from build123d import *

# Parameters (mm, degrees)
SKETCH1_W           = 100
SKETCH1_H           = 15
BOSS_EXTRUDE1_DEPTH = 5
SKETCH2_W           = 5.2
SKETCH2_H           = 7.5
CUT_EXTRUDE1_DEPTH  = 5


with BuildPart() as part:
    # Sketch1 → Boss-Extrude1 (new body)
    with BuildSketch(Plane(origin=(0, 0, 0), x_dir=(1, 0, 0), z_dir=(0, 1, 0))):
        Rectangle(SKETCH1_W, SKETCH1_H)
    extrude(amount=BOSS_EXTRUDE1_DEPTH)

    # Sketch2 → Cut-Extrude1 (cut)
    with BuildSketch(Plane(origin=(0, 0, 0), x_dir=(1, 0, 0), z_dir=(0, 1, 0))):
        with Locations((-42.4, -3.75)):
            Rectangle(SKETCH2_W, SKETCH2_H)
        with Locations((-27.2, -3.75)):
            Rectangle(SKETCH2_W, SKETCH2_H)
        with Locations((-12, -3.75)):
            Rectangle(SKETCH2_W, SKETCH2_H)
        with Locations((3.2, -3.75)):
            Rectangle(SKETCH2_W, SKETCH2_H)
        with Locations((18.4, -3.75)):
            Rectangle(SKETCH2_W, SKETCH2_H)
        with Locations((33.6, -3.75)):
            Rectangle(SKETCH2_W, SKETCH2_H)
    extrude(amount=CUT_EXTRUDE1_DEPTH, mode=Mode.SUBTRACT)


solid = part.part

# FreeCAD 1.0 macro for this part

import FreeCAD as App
import Part
import Sketcher

V = App.Vector


def add_polygon(sketch, points):
    """Adds a closed chain of lines whose ends are joined by coincident constraints."""
    first, n = sketch.GeometryCount, len(points)
    for a, b in zip(points, points[1:] + points[:1]):
        sketch.addGeometry(Part.LineSegment(App.Vector(*a, 0), App.Vector(*b, 0)), False)
    for i in range(n):
        sketch.addConstraint(Sketcher.Constraint("Coincident", first + i, 2, first + (i + 1) % n, 1))

doc = App.newDocument("Part")
body = doc.addObject("PartDesign::Body", "Body")

sketch1 = body.newObject("Sketcher::SketchObject", "Sketch")
sketch1.AttachmentSupport = (doc.getObject("XZ_Plane"), [""])
sketch1.MapMode = "FlatFace"
add_polygon(sketch1, [(-50, -8), (-50, 8), (50, 8), (50, -8)])
sketch1.addConstraint(Sketcher.Constraint("Vertical", 0))
sketch1.addConstraint(Sketcher.Constraint("Horizontal", 1))
sketch1.addConstraint(Sketcher.Constraint("Vertical", 2))
sketch1.addConstraint(Sketcher.Constraint("Horizontal", 3))
sketch1.addConstraint(Sketcher.Constraint("Symmetric", 0, 2, 2, 2, -1, 1))
sketch1.addConstraint(Sketcher.Constraint("DistanceX", 1, 1, 1, 2, 100.0))
sketch1.addConstraint(Sketcher.Constraint("DistanceY", 0, 1, 0, 2, 15.0))
pad1 = body.newObject("PartDesign::Pad", "Pad")
pad1.Profile = sketch1
pad1.Length = 5
pad1.Reversed = True

sketch2 = body.newObject("Sketcher::SketchObject", "Sketch001")
sketch2.AttachmentSupport = (doc.getObject("XZ_Plane"), [""])
sketch2.MapMode = "FlatFace"
add_polygon(sketch2, [(-45, 0), (-45, 8), (-40, 8), (-40, 0)])
add_polygon(sketch2, [(-30, 0), (-30, 8), (-25, 8), (-25, 0)])
add_polygon(sketch2, [(-15, 0), (-15, 8), (-9, 8), (-9, 0)])
add_polygon(sketch2, [(1, 0), (1, 8), (6, 8), (6, 0)])
add_polygon(sketch2, [(16, 0), (16, 8), (21, 8), (21, 0)])
add_polygon(sketch2, [(31, 0), (31, 8), (36, 8), (36, 0)])
sketch2.addConstraint(Sketcher.Constraint("Vertical", 0))
sketch2.addConstraint(Sketcher.Constraint("Horizontal", 1))
sketch2.addConstraint(Sketcher.Constraint("Vertical", 2))
sketch2.addConstraint(Sketcher.Constraint("Horizontal", 3))
sketch2.addConstraint(Sketcher.Constraint("Vertical", 4))
sketch2.addConstraint(Sketcher.Constraint("Horizontal", 5))
sketch2.addConstraint(Sketcher.Constraint("Vertical", 6))
sketch2.addConstraint(Sketcher.Constraint("Horizontal", 7))
sketch2.addConstraint(Sketcher.Constraint("Vertical", 8))
sketch2.addConstraint(Sketcher.Constraint("Horizontal", 9))
sketch2.addConstraint(Sketcher.Constraint("Vertical", 10))
sketch2.addConstraint(Sketcher.Constraint("Horizontal", 11))
sketch2.addConstraint(Sketcher.Constraint("Vertical", 12))
sketch2.addConstraint(Sketcher.Constraint("Horizontal", 13))
sketch2.addConstraint(Sketcher.Constraint("Vertical", 14))
sketch2.addConstraint(Sketcher.Constraint("Horizontal", 15))
sketch2.addConstraint(Sketcher.Constraint("Vertical", 16))
sketch2.addConstraint(Sketcher.Constraint("Horizontal", 17))
sketch2.addConstraint(Sketcher.Constraint("Vertical", 18))
sketch2.addConstraint(Sketcher.Constraint("Horizontal", 19))
sketch2.addConstraint(Sketcher.Constraint("Vertical", 20))
sketch2.addConstraint(Sketcher.Constraint("Horizontal", 21))
sketch2.addConstraint(Sketcher.Constraint("Vertical", 22))
sketch2.addConstraint(Sketcher.Constraint("Horizontal", 23))
sketch2.addConstraint(Sketcher.Constraint("PointOnObject", 2, 2, -1))
sketch2.addConstraint(Sketcher.Constraint("PointOnObject", 6, 2, -1))
sketch2.addConstraint(Sketcher.Constraint("PointOnObject", 10, 2, -1))
sketch2.addConstraint(Sketcher.Constraint("PointOnObject", 14, 2, -1))
sketch2.addConstraint(Sketcher.Constraint("PointOnObject", 18, 2, -1))
sketch2.addConstraint(Sketcher.Constraint("PointOnObject", 22, 2, -1))
sketch2.addConstraint(Sketcher.Constraint("Horizontal", 1, 2, 4, 2))
sketch2.addConstraint(Sketcher.Constraint("Horizontal", 5, 2, 8, 2))
sketch2.addConstraint(Sketcher.Constraint("Horizontal", 9, 2, 12, 2))
sketch2.addConstraint(Sketcher.Constraint("Horizontal", 13, 2, 16, 2))
sketch2.addConstraint(Sketcher.Constraint("Horizontal", 17, 2, 20, 2))
sketch2.addConstraint(Sketcher.Constraint("Equal", 3, 5))
sketch2.addConstraint(Sketcher.Constraint("Equal", 7, 9))
sketch2.addConstraint(Sketcher.Constraint("Equal", 11, 13))
sketch2.addConstraint(Sketcher.Constraint("Equal", 15, 17))
sketch2.addConstraint(Sketcher.Constraint("Equal", 19, 21))
sketch2.addConstraint(Sketcher.Constraint("DistanceX", 1, 1, 1, 2, 5.2))
sketch2.addConstraint(Sketcher.Constraint("DistanceY", 0, 1, 0, 2, 7.5))
sketch2.addConstraint(Sketcher.Constraint("DistanceX", 0, 2, -1, 1, 45.0))
sketch2.addConstraint(Sketcher.Constraint("DistanceX", -1, 1, 17, 2, 21.0))
sketch2.addConstraint(Sketcher.Constraint("DistanceX", -1, 1, 20, 2, 31.0))
sketch2.addConstraint(Sketcher.Constraint("DistanceX", 1, 2, 4, 2, 10.0))
sketch2.addConstraint(Sketcher.Constraint("DistanceX", 5, 2, 8, 2, 10.0))
sketch2.addConstraint(Sketcher.Constraint("DistanceX", 9, 2, 12, 2, 10.0))
pocket1 = body.newObject("PartDesign::Pocket", "Pocket")
pocket1.Profile = sketch2
pocket1.Length = 5

doc.recompute()
